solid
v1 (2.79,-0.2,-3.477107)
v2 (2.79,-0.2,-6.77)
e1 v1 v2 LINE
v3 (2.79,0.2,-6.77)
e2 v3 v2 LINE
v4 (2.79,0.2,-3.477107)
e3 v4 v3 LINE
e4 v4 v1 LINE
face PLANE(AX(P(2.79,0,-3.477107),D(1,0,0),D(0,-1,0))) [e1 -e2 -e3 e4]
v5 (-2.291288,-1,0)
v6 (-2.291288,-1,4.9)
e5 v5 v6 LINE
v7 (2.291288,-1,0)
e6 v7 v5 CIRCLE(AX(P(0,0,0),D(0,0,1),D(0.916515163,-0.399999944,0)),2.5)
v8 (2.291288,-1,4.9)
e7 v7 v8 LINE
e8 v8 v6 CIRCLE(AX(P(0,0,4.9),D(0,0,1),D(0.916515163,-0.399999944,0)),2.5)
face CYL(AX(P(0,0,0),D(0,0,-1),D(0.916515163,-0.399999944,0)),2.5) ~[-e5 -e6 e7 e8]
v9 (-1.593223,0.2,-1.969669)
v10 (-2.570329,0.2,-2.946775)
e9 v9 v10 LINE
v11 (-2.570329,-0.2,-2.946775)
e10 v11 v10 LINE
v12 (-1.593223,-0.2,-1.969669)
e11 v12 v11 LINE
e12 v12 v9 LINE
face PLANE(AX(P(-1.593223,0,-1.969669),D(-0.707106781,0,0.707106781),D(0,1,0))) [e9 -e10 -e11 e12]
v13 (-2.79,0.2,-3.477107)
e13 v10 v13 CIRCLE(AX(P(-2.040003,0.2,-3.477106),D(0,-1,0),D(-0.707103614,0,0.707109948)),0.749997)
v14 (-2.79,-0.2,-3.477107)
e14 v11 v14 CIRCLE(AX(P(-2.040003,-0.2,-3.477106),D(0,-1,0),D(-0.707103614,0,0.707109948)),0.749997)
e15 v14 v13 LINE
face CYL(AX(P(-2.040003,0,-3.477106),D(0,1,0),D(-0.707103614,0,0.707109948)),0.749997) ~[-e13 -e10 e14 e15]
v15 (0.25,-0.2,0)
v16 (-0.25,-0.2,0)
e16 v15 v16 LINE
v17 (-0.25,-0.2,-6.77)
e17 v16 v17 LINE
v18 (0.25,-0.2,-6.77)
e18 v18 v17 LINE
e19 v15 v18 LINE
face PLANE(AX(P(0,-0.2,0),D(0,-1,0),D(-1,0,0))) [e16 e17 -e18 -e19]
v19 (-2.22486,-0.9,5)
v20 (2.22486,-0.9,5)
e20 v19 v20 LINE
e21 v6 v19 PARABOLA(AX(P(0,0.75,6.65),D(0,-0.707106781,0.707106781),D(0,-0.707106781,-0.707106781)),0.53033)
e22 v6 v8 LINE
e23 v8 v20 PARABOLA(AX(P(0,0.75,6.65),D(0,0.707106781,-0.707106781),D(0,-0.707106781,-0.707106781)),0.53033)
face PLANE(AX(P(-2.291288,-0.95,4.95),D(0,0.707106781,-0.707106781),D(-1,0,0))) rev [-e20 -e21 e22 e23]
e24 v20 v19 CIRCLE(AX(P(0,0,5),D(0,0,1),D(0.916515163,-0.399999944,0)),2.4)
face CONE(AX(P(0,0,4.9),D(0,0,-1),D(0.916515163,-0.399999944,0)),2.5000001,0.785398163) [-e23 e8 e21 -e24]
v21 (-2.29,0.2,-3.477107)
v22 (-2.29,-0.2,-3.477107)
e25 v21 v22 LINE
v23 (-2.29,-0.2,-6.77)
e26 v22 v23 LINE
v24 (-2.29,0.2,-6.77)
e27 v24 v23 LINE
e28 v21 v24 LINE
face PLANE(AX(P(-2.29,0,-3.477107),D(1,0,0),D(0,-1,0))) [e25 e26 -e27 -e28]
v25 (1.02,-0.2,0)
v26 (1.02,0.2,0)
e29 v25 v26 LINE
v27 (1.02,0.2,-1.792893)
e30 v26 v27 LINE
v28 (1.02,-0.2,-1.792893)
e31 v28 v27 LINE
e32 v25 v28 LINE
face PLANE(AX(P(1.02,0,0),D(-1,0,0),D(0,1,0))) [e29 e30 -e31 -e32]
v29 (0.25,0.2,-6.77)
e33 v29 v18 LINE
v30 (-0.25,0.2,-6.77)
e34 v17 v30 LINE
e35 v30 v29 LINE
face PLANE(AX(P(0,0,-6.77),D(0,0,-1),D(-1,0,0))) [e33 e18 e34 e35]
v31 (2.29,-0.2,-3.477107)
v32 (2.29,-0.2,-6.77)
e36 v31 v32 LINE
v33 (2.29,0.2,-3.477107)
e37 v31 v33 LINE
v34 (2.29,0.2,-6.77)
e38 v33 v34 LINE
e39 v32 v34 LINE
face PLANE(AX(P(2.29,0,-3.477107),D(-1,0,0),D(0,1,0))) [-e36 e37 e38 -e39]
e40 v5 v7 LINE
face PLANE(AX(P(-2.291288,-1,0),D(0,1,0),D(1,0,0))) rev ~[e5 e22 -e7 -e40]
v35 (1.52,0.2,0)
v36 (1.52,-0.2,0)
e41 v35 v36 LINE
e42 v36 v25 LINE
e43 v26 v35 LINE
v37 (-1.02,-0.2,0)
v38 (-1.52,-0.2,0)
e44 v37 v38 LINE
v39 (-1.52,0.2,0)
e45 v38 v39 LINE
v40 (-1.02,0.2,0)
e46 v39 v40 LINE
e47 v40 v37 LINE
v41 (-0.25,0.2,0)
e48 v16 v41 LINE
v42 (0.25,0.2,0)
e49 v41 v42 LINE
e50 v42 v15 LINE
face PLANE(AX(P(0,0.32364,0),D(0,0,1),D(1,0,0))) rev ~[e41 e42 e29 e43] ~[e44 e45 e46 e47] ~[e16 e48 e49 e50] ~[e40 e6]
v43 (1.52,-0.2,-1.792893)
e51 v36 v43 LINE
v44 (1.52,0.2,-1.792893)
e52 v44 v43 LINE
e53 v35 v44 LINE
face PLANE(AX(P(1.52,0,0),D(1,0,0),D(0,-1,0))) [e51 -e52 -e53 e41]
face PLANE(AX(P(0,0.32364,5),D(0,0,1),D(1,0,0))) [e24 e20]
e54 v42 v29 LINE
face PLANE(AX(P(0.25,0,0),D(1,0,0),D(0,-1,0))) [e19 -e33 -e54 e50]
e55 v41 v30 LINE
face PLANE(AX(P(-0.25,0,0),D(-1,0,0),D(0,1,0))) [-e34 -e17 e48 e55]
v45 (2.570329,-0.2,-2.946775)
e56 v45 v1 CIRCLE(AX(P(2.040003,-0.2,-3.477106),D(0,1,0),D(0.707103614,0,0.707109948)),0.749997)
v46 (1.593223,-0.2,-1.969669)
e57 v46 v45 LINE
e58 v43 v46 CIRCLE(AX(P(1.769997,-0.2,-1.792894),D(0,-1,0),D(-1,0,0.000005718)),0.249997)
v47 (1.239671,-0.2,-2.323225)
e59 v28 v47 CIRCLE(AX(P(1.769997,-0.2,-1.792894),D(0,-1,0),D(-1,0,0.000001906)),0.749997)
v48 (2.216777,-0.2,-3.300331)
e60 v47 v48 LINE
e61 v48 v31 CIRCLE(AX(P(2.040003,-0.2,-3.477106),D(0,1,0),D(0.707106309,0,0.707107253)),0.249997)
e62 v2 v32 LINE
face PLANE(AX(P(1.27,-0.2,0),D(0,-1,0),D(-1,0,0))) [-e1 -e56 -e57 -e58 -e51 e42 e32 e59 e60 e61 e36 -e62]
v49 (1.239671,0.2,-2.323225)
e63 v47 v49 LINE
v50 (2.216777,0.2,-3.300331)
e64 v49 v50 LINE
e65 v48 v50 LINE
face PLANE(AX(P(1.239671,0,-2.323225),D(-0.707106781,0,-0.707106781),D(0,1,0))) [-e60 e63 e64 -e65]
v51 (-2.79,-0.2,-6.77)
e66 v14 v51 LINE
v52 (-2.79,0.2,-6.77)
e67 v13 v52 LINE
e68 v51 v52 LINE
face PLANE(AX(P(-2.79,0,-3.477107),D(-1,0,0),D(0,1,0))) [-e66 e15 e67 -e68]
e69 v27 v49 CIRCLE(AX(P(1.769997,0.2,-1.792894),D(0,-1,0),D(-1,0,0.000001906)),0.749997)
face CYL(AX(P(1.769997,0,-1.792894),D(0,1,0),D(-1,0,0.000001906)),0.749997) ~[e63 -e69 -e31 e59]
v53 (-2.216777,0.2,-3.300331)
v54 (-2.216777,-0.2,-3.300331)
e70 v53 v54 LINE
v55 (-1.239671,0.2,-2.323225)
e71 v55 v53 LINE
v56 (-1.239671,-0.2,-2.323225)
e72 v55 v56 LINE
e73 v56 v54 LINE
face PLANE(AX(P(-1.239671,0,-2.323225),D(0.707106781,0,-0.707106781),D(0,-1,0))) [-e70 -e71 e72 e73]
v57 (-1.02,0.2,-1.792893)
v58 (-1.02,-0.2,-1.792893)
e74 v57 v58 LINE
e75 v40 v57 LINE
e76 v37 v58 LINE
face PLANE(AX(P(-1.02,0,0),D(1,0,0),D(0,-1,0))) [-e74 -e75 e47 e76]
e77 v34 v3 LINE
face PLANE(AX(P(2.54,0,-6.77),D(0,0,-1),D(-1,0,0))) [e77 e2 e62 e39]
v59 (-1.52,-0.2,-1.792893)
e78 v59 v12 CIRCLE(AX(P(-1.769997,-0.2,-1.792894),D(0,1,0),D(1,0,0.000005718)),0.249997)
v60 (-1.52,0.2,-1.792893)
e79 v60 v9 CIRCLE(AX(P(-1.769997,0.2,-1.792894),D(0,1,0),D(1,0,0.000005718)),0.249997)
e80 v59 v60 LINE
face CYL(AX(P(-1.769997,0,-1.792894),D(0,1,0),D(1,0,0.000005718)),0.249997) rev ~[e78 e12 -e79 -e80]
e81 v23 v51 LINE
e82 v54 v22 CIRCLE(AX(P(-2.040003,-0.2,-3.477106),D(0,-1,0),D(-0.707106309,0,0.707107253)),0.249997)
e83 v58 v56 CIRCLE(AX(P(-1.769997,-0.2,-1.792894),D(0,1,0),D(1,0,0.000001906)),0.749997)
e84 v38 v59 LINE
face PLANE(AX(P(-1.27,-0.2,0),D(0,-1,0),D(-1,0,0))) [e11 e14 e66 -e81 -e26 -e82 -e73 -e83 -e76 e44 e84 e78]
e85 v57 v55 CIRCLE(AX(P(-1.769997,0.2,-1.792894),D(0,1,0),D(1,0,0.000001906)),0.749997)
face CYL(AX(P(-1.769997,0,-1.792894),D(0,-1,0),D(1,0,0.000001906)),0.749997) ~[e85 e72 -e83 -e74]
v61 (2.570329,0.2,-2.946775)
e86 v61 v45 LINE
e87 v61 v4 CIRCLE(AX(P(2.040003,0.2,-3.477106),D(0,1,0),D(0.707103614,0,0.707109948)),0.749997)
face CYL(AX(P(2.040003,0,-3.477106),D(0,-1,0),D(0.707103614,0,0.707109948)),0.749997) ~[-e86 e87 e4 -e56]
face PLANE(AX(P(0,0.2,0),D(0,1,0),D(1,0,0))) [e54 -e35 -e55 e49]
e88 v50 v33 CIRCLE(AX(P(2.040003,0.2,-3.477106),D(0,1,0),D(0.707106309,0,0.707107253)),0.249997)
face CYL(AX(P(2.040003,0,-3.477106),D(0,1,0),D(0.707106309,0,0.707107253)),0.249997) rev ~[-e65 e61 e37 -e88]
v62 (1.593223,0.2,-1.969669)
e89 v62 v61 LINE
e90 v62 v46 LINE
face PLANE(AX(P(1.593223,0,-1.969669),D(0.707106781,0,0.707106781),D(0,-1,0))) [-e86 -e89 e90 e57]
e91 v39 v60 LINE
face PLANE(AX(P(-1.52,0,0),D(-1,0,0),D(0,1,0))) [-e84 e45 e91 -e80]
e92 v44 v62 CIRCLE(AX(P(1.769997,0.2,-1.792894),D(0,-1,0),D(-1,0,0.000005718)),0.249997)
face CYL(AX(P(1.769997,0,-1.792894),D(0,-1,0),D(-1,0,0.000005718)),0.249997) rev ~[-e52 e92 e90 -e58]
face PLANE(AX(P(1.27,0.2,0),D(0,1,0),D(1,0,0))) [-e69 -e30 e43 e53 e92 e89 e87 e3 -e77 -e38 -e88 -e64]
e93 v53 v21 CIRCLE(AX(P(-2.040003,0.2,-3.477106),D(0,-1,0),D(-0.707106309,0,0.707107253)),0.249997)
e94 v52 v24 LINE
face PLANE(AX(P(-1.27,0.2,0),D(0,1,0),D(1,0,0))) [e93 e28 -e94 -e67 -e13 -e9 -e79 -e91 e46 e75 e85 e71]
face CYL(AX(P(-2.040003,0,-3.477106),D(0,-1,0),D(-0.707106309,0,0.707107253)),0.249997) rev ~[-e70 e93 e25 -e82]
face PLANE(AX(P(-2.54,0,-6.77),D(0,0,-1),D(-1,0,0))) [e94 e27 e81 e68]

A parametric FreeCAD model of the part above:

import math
import FreeCAD as App
import Part
import Sketcher
Q = App.Units.Quantity


def edges_at(feature, points):
    """Names of the edges that pass closest to the given points."""
    edges = feature.Shape.Edges
    near = lambda p: min(range(len(edges)), key=lambda i: edges[i].distToShape(Part.Vertex(*p))[0])
    return sorted({f"Edge{near(p) + 1}" for p in points})

doc = App.newDocument("Part")
params = doc.addObject("Spreadsheet::Sheet", "Params")
for row, (alias, value) in enumerate([
    ("sketch1_radius", "2.5 mm"),
    ("pad1_length", "5 mm"),
    ("chamfer_size", "0.1 mm"),
    ("sketch2_width", "0.5 mm"),
    ("sketch2_height", "0.4 mm"),
    ("sketch4_width", "0.5 mm"),
    ("sketch4_height", "0.4 mm"),
    ("sketch5_height", "6.77 mm"),
    ("sketch6_width", "0.5 mm"),
    ("sketch6_height", "0.4 mm"),
], start=1):
    params.set(f"A{row}", alias)
    params.set(f"B{row}", "=" + value)
    params.setAlias(f"B{row}", alias)

body = doc.addObject("PartDesign::Body", "Body")

sketch1 = body.newObject("Sketcher::SketchObject", "Sketch")
sketch1.AttachmentSupport = (doc.getObject("XY_Plane"), [""])
sketch1.MapMode = "FlatFace"
sketch1.addGeometry([
    Part.LineSegment(App.Vector(-2.3, -1, 0), App.Vector(2.3, -1, 0)),
    Part.ArcOfCircle(Part.Circle(App.Vector(0, 0, 0), App.Vector(0, 0, 1), 2.5), math.radians(-24), math.radians(204)),
], False)
sketch1.addConstraint([
    Sketcher.Constraint("Coincident", 0, 1, 1, 2),
    Sketcher.Constraint("Coincident", 1, 1, 0, 2),
    Sketcher.Constraint("Horizontal", 0),
    Sketcher.Constraint("Coincident", 1, 3, -1, 1),
    Sketcher.Constraint("Radius", 1, Q("2.5 mm")),
    Sketcher.Constraint("DistanceY", 0, 1, -1, 1, Q("1 mm")),
])
sketch1.setExpression("Constraints[4]", "Params.sketch1_radius")
pad1 = body.newObject("PartDesign::Pad", "Pad")
pad1.Profile = sketch1
pad1.setExpression("Length", "Params.pad1_length")
doc.recompute()

chamfer = body.newObject("PartDesign::Chamfer", "Chamfer")
chamfer.Base = (pad1, edges_at(pad1, [(0, -1, 5), (0, 2.5, 5)]))
chamfer.setExpression("Size", "Params.chamfer_size")

sketch2 = body.newObject("Sketcher::SketchObject", "Sketch001")
sketch2.AttachmentSupport = (doc.getObject("XY_Plane"), [""])
sketch2.MapMode = "FlatFace"
sketch2.addGeometry([
    Part.LineSegment(App.Vector(-1.52, -0.2, 0), App.Vector(-1.52, 0.2, 0)),
    Part.LineSegment(App.Vector(-1.52, 0.2, 0), App.Vector(-1.02, 0.2, 0)),
    Part.LineSegment(App.Vector(-1.02, 0.2, 0), App.Vector(-1.02, -0.2, 0)),
    Part.LineSegment(App.Vector(-1.02, -0.2, 0), App.Vector(-1.52, -0.2, 0)),
], False)
sketch2.addConstraint([
    Sketcher.Constraint("Coincident", 0, 2, 1, 1),
    Sketcher.Constraint("Coincident", 1, 2, 2, 1),
    Sketcher.Constraint("Coincident", 2, 2, 3, 1),
    Sketcher.Constraint("Coincident", 3, 2, 0, 1),
    Sketcher.Constraint("Vertical", 0),
    Sketcher.Constraint("Horizontal", 1),
    Sketcher.Constraint("Vertical", 2),
    Sketcher.Constraint("Horizontal", 3),
    Sketcher.Constraint("DistanceX", 1, 1, 1, 2, Q("0.5 mm")),
    Sketcher.Constraint("DistanceY", 0, 1, 0, 2, Q("0.4 mm")),
    Sketcher.Constraint("DistanceY", -1, 1, 0, 2, Q("0.2 mm")),
    Sketcher.Constraint("DistanceX", 0, 2, -1, 1, Q("1.52 mm")),
])
sketch2.setExpression("Constraints[8]", "Params.sketch2_width")
sketch2.setExpression("Constraints[9]", "Params.sketch2_height")

sketch3 = body.newObject("Sketcher::SketchObject", "Sketch002")
sketch3.AttachmentSupport = (doc.getObject("XZ_Plane"), [""])
sketch3.MapMode = "FlatFace"
sketch3.addGeometry([
    Part.LineSegment(App.Vector(-1.27, 0, 0), App.Vector(-1.27, -1.79, 0)),
    Part.ArcOfCircle(Part.Circle(App.Vector(-1.77, -1.79, 0), App.Vector(0, 0, 1), 0.5), math.radians(-45), math.radians(0)),
    Part.LineSegment(App.Vector(-1.42, -2.15, 0), App.Vector(-2.39, -3.12, 0)),
    Part.ArcOfCircle(Part.Circle(App.Vector(-2.04, -3.48, 0), App.Vector(0, 0, 1), 0.5), math.radians(135), math.radians(180)),
    Part.LineSegment(App.Vector(-2.54, -3.48, 0), App.Vector(-2.54, -6.77, 0)),
], False)
sketch3.addConstraint([
    Sketcher.Constraint("Coincident", 0, 2, 1, 2),
    Sketcher.Constraint("Coincident", 1, 1, 2, 1),
    Sketcher.Constraint("Coincident", 2, 2, 3, 1),
    Sketcher.Constraint("Coincident", 3, 2, 4, 1),
    Sketcher.Constraint("Vertical", 0),
    Sketcher.Constraint("Vertical", 4),
    Sketcher.Constraint("Equal", 1, 3),
    Sketcher.Constraint("PointOnObject", 0, 1, -1),
    Sketcher.Constraint("Horizontal", 1, 3, 0, 2),
    Sketcher.Constraint("Angle", 2, Q("-135 deg")),
    Sketcher.Constraint("DistanceX", 0, 1, -1, 1, Q("1.27 mm")),
    Sketcher.Constraint("DistanceX", 3, 2, -1, 1, Q("2.54 mm")),
    Sketcher.Constraint("DistanceY", 4, 2, -1, 1, Q("6.77 mm")),
    Sketcher.Constraint("Radius", 1, Q("0.499997 mm")),
    Sketcher.Constraint("DistanceY", 0, 2, 0, 1, Q("1.792893 mm")),
    Sketcher.Constraint("DistanceY", 4, 2, 4, 1, Q("3.292893 mm")),
    Sketcher.Constraint("DistanceX", 1, 3, 1, 1, Q("0.35355 mm")),
    Sketcher.Constraint("DistanceX", 2, 2, 3, 3, Q("0.35355 mm")),
])
doc.recompute()

additivepipe = body.newObject("PartDesign::AdditivePipe", "AdditivePipe")
additivepipe.Profile = sketch2
additivepipe.Spine = (sketch3, ["Edge1", "Edge2", "Edge3", "Edge4", "Edge5"])

sketch4 = body.newObject("Sketcher::SketchObject", "Sketch003")
sketch4.AttachmentSupport = (doc.getObject("XY_Plane"), [""])
sketch4.MapMode = "FlatFace"
sketch4.addGeometry([
    Part.LineSegment(App.Vector(-0.25, -0.2, 0), App.Vector(-0.25, 0.2, 0)),
    Part.LineSegment(App.Vector(-0.25, 0.2, 0), App.Vector(0.25, 0.2, 0)),
    Part.LineSegment(App.Vector(0.25, 0.2, 0), App.Vector(0.25, -0.2, 0)),
    Part.LineSegment(App.Vector(0.25, -0.2, 0), App.Vector(-0.25, -0.2, 0)),
], False)
sketch4.addConstraint([
    Sketcher.Constraint("Coincident", 0, 2, 1, 1),
    Sketcher.Constraint("Coincident", 1, 2, 2, 1),
    Sketcher.Constraint("Coincident", 2, 2, 3, 1),
    Sketcher.Constraint("Coincident", 3, 2, 0, 1),
    Sketcher.Constraint("Vertical", 0),
    Sketcher.Constraint("Horizontal", 1),
    Sketcher.Constraint("Vertical", 2),
    Sketcher.Constraint("Horizontal", 3),
    Sketcher.Constraint("Symmetric", 0, 2, 2, 2, -1, 1),
    Sketcher.Constraint("DistanceX", 1, 1, 1, 2, Q("0.5 mm")),
    Sketcher.Constraint("DistanceY", 0, 1, 0, 2, Q("0.4 mm")),
])
sketch4.setExpression("Constraints[9]", "Params.sketch4_width")
sketch4.setExpression("Constraints[10]", "Params.sketch4_height")

sketch5 = body.newObject("Sketcher::SketchObject", "Sketch004")
sketch5.AttachmentSupport = (doc.getObject("XZ_Plane"), [""])
sketch5.MapMode = "FlatFace"
sketch5.addGeometry(Part.LineSegment(App.Vector(0, 0, 0), App.Vector(0, -7, 0)), False)
sketch5.addConstraint([
    Sketcher.Constraint("Vertical", 0),
    Sketcher.Constraint("Coincident", 0, 1, -1, 1),
    Sketcher.Constraint("DistanceY", 0, 2, 0, 1, Q("6.77 mm")),
])
sketch5.setExpression("Constraints[2]", "Params.sketch5_height")
doc.recompute()

additivepipe2 = body.newObject("PartDesign::AdditivePipe", "AdditivePipe001")
additivepipe2.Profile = sketch4
additivepipe2.Spine = (sketch5, ["Edge1"])

sketch6 = body.newObject("Sketcher::SketchObject", "Sketch005")
sketch6.AttachmentSupport = (doc.getObject("XY_Plane"), [""])
sketch6.MapMode = "FlatFace"
sketch6.addGeometry([
    Part.LineSegment(App.Vector(1.02, -0.2, 0), App.Vector(1.02, 0.2, 0)),
    Part.LineSegment(App.Vector(1.02, 0.2, 0), App.Vector(1.52, 0.2, 0)),
    Part.LineSegment(App.Vector(1.52, 0.2, 0), App.Vector(1.52, -0.2, 0)),
    Part.LineSegment(App.Vector(1.52, -0.2, 0), App.Vector(1.02, -0.2, 0)),
], False)
sketch6.addConstraint([
    Sketcher.Constraint("Coincident", 0, 2, 1, 1),
    Sketcher.Constraint("Coincident", 1, 2, 2, 1),
    Sketcher.Constraint("Coincident", 2, 2, 3, 1),
    Sketcher.Constraint("Coincident", 3, 2, 0, 1),
    Sketcher.Constraint("Vertical", 0),
    Sketcher.Constraint("Horizontal", 1),
    Sketcher.Constraint("Vertical", 2),
    Sketcher.Constraint("Horizontal", 3),
    Sketcher.Constraint("DistanceX", 1, 1, 1, 2, Q("0.5 mm")),
    Sketcher.Constraint("DistanceY", 0, 1, 0, 2, Q("0.4 mm")),
    Sketcher.Constraint("DistanceY", -1, 1, 0, 2, Q("0.2 mm")),
    Sketcher.Constraint("DistanceX", -1, 1, 0, 2, Q("1.02 mm")),
])
sketch6.setExpression("Constraints[8]", "Params.sketch6_width")
sketch6.setExpression("Constraints[9]", "Params.sketch6_height")

sketch7 = body.newObject("Sketcher::SketchObject", "Sketch006")
sketch7.AttachmentSupport = (doc.getObject("XZ_Plane"), [""])
sketch7.MapMode = "FlatFace"
sketch7.addGeometry([
    Part.LineSegment(App.Vector(1.27, 0, 0), App.Vector(1.27, -1.79, 0)),
    Part.ArcOfCircle(Part.Circle(App.Vector(1.77, -1.79, 0), App.Vector(0, 0, 1), 0.5), math.radians(180), math.radians(225)),
    Part.LineSegment(App.Vector(1.42, -2.15, 0), App.Vector(2.39, -3.12, 0)),
    Part.ArcOfCircle(Part.Circle(App.Vector(2.04, -3.48, 0), App.Vector(0, 0, 1), 0.5), math.radians(0), math.radians(45)),
    Part.LineSegment(App.Vector(2.54, -3.48, 0), App.Vector(2.54, -6.77, 0)),
], False)
sketch7.addConstraint([
    Sketcher.Constraint("Coincident", 0, 2, 1, 1),
    Sketcher.Constraint("Coincident", 1, 2, 2, 1),
    Sketcher.Constraint("Coincident", 2, 2, 3, 2),
    Sketcher.Constraint("Coincident", 3, 1, 4, 1),
    Sketcher.Constraint("Vertical", 0),
    Sketcher.Constraint("Vertical", 4),
    Sketcher.Constraint("Equal", 1, 3),
    Sketcher.Constraint("PointOnObject", 0, 1, -1),
    Sketcher.Constraint("Horizontal", 1, 3, 0, 2),
    Sketcher.Constraint("Angle", 2, Q("-45 deg")),
    Sketcher.Constraint("DistanceX", -1, 1, 0, 1, Q("1.27 mm")),
    Sketcher.Constraint("DistanceX", -1, 1, 3, 1, Q("2.54 mm")),
    Sketcher.Constraint("DistanceY", 4, 2, -1, 1, Q("6.77 mm")),
    Sketcher.Constraint("Radius", 1, Q("0.499997 mm")),
    Sketcher.Constraint("DistanceY", 0, 2, 0, 1, Q("1.792893 mm")),
    Sketcher.Constraint("DistanceY", 4, 2, 4, 1, Q("3.292893 mm")),
    Sketcher.Constraint("DistanceX", 1, 2, 1, 3, Q("0.35355 mm")),
    Sketcher.Constraint("DistanceX", 3, 3, 2, 2, Q("0.35355 mm")),
])
doc.recompute()

additivepipe3 = body.newObject("PartDesign::AdditivePipe", "AdditivePipe002")
additivepipe3.Profile = sketch6
additivepipe3.Spine = (sketch7, ["Edge1", "Edge2", "Edge3", "Edge4", "Edge5"])

doc.recompute()
